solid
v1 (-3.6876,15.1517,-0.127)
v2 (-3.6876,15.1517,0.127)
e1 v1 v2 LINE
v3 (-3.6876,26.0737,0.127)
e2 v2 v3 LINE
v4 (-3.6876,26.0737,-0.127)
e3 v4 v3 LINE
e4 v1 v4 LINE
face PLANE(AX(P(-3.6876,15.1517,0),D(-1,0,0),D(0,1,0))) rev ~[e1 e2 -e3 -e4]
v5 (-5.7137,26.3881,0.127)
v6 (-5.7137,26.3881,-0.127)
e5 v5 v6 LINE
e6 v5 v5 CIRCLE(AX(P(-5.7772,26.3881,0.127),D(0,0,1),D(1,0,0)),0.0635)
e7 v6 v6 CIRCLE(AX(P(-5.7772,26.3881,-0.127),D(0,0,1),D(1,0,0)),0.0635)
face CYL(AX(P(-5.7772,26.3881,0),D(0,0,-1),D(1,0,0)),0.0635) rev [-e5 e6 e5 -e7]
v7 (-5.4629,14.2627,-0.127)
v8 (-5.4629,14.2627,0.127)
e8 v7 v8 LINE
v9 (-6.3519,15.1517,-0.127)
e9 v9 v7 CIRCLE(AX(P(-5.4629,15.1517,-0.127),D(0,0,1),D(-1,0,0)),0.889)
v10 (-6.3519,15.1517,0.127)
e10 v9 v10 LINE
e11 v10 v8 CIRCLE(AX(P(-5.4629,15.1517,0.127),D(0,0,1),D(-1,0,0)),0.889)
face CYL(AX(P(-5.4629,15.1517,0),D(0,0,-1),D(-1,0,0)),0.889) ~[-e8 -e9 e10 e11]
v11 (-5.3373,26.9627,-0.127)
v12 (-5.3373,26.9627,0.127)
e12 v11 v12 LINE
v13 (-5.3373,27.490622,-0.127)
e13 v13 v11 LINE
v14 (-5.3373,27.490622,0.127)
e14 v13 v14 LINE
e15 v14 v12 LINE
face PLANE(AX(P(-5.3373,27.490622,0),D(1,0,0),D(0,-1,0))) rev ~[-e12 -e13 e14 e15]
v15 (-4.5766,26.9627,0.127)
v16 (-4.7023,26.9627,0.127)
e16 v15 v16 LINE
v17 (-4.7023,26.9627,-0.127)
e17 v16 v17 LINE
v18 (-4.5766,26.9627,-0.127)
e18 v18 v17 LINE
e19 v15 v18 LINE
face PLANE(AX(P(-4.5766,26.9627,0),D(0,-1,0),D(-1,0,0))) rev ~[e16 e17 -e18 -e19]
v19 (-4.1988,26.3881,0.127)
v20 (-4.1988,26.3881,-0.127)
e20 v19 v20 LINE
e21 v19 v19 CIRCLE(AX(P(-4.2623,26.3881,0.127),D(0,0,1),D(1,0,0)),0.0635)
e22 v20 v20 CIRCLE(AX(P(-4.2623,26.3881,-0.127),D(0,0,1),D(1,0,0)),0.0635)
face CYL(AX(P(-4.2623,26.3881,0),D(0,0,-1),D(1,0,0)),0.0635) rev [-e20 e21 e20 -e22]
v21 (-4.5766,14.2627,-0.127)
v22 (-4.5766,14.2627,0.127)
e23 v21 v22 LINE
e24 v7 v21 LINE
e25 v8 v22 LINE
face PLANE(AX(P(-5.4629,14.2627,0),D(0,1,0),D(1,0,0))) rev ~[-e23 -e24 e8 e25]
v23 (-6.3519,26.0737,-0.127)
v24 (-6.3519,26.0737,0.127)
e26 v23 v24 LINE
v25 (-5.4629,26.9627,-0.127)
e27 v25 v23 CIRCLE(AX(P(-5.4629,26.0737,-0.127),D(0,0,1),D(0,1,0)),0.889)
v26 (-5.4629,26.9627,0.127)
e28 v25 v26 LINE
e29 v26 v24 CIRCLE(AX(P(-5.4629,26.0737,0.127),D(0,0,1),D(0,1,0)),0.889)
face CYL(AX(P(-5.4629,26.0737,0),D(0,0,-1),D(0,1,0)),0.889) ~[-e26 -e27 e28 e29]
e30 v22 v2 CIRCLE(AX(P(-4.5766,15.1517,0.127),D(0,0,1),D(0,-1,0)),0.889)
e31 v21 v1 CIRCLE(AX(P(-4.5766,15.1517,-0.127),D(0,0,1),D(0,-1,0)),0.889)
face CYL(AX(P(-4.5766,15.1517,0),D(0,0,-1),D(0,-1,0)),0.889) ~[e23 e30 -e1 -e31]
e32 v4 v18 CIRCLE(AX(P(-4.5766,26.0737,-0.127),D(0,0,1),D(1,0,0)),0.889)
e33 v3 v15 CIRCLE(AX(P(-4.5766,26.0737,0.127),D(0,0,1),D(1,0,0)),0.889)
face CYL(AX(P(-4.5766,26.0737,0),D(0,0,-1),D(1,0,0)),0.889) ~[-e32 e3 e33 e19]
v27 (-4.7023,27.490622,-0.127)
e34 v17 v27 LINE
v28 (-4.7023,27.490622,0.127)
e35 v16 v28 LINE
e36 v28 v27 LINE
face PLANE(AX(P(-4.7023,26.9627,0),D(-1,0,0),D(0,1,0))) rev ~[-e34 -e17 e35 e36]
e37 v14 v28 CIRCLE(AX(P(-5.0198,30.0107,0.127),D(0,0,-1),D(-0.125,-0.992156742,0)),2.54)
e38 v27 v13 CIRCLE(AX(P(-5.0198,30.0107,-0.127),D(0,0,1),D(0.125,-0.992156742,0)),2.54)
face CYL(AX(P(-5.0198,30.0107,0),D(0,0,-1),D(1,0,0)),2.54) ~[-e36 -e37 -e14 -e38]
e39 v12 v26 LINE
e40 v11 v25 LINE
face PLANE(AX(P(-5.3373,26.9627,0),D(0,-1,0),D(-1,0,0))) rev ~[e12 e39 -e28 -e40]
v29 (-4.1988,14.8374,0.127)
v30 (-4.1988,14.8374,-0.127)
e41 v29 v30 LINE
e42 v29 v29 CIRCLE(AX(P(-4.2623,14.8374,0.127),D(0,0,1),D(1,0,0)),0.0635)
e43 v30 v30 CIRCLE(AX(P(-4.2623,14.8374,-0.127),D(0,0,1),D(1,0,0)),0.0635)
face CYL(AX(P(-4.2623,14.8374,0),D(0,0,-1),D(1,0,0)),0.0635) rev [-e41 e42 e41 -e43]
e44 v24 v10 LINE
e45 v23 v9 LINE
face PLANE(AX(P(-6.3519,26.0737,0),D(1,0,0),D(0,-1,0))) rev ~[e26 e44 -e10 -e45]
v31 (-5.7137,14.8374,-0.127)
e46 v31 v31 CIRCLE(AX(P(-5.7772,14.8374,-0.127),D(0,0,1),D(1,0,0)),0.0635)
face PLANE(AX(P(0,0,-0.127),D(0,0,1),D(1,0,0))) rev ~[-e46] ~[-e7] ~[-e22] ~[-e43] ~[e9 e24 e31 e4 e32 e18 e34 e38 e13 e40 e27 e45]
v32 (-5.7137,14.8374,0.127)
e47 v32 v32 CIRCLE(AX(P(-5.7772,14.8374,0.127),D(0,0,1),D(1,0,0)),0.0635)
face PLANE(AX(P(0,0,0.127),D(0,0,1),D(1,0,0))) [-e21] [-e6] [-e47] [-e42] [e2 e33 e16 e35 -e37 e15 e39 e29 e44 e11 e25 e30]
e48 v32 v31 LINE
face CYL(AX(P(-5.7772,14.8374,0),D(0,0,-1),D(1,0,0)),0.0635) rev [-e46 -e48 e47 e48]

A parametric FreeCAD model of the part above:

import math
import FreeCAD as App
import Part
import Sketcher
from FreeCAD import Vector
Q = App.Units.Quantity

doc = App.newDocument("Part")
params = doc.addObject("Spreadsheet::Sheet", "Params")
for row, (alias, value) in enumerate([
    ("sketch1_radius", "0.1 in"),
    ("sketch1_diameter", "0.005 in"),
    ("sketch1_radius2", "0.035 in"),
    ("sketch1_height", "0.43 in"),
    ("pad1_length", "0.01 in"),
], start=1):
    params.set(f"A{row}", alias)
    params.set(f"B{row}", "=" + value)
    params.setAlias(f"B{row}", alias)

body = doc.addObject("PartDesign::Body", "Body")

# Sketch on XY plane
sketch1 = body.newObject("Sketcher::SketchObject", "Sketch")
sketch1.AttachmentSupport = (doc.getObject("XY_Plane"), [""])
sketch1.MapMode = "FlatFace"
sketch1.addGeometry(Part.LineSegment(Vector(-5.34, 27.49, 0), Vector(-5.34, 26.96, 0)), False)
sketch1.addGeometry(Part.LineSegment(Vector(-5.34, 26.96, 0), Vector(-5.46, 26.96, 0)), False)
sketch1.addGeometry(Part.ArcOfCircle(Part.Circle(Vector(-5.46, 26.07, 0), Vector(0, 0, 1), 0.89), math.radians(90), math.radians(180)), False)
sketch1.addGeometry(Part.LineSegment(Vector(-6.35, 26.07, 0), Vector(-6.35, 15.15, 0)), False)
sketch1.addGeometry(Part.ArcOfCircle(Part.Circle(Vector(-5.46, 15.15, 0), Vector(0, 0, 1), 0.89), math.radians(180), math.radians(270)), False)
sketch1.addGeometry(Part.LineSegment(Vector(-5.46, 14.26, 0), Vector(-4.58, 14.26, 0)), False)
sketch1.addGeometry(Part.ArcOfCircle(Part.Circle(Vector(-4.58, 15.15, 0), Vector(0, 0, 1), 0.89), math.radians(-90), math.radians(0)), False)
sketch1.addGeometry(Part.LineSegment(Vector(-3.69, 15.15, 0), Vector(-3.69, 26.07, 0)), False)
sketch1.addGeometry(Part.ArcOfCircle(Part.Circle(Vector(-4.58, 26.07, 0), Vector(0, 0, 1), 0.89), math.radians(0), math.radians(90)), False)
sketch1.addGeometry(Part.LineSegment(Vector(-4.58, 26.96, 0), Vector(-4.7, 26.96, 0)), False)
sketch1.addGeometry(Part.LineSegment(Vector(-4.7, 26.96, 0), Vector(-4.7, 27.49, 0)), False)
sketch1.addGeometry(Part.ArcOfCircle(Part.Circle(Vector(-5.02, 30.01, 0), Vector(0, 0, 1), 2.54), math.radians(-83), math.radians(263)), False)
sketch1.addGeometry(Part.Circle(Vector(-4.26, 14.84, 0), Vector(0, 0, 1), 0.06), False)
sketch1.addGeometry(Part.Circle(Vector(-5.78, 26.39, 0), Vector(0, 0, 1), 0.06), False)
sketch1.addGeometry(Part.Circle(Vector(-4.26, 26.39, 0), Vector(0, 0, 1), 0.06), False)
sketch1.addGeometry(Part.Circle(Vector(-5.78, 14.84, 0), Vector(0, 0, 1), 0.06), False)
sketch1.addConstraint(Sketcher.Constraint("Coincident", 0, 2, 1, 1))
sketch1.addConstraint(Sketcher.Constraint("Tangent", 1, 2, 2, 1))
sketch1.addConstraint(Sketcher.Constraint("Tangent", 2, 2, 3, 1))
sketch1.addConstraint(Sketcher.Constraint("Tangent", 3, 2, 4, 1))
sketch1.addConstraint(Sketcher.Constraint("Tangent", 4, 2, 5, 1))
sketch1.addConstraint(Sketcher.Constraint("Tangent", 5, 2, 6, 1))
sketch1.addConstraint(Sketcher.Constraint("Tangent", 6, 2, 7, 1))
sketch1.addConstraint(Sketcher.Constraint("Tangent", 7, 2, 8, 1))
sketch1.addConstraint(Sketcher.Constraint("Tangent", 8, 2, 9, 1))
sketch1.addConstraint(Sketcher.Constraint("Coincident", 9, 2, 10, 1))
sketch1.addConstraint(Sketcher.Constraint("Coincident", 10, 2, 11, 1))
sketch1.addConstraint(Sketcher.Constraint("Coincident", 11, 2, 0, 1))
sketch1.addConstraint(Sketcher.Constraint("Vertical", 0))
sketch1.addConstraint(Sketcher.Constraint("Horizontal", 1))
sketch1.addConstraint(Sketcher.Constraint("Vertical", 3))
sketch1.addConstraint(Sketcher.Constraint("Horizontal", 5))
sketch1.addConstraint(Sketcher.Constraint("Vertical", 7))
sketch1.addConstraint(Sketcher.Constraint("Horizontal", 9))
sketch1.addConstraint(Sketcher.Constraint("Vertical", 10))
sketch1.addConstraint(Sketcher.Constraint("Equal", 2, 4))
sketch1.addConstraint(Sketcher.Constraint("Equal", 4, 6))
sketch1.addConstraint(Sketcher.Constraint("Equal", 6, 8))
sketch1.addConstraint(Sketcher.Constraint("Equal", 12, 13))
sketch1.addConstraint(Sketcher.Constraint("Equal", 13, 14))
sketch1.addConstraint(Sketcher.Constraint("Equal", 14, 15))
sketch1.addConstraint(Sketcher.Constraint("Horizontal", 2, 3, 8, 3))
sketch1.addConstraint(Sketcher.Constraint("Horizontal", 13, 3, 14, 3))
sketch1.addConstraint(Sketcher.Constraint("Horizontal", 12, 3, 15, 3))
sketch1.addConstraint(Sketcher.Constraint("Horizontal", 10, 2, 11, 2))
sketch1.addConstraint(Sketcher.Constraint("Vertical", 12, 3, 14, 3))
sketch1.addConstraint(Sketcher.Constraint("Vertical", 13, 3, 15, 3))
sketch1.addConstraint(Sketcher.Constraint("Equal", 1, 9))
sketch1.addConstraint(Sketcher.Constraint("Radius", 11, Q("0.1 in")))
sketch1.addConstraint(Sketcher.Constraint("Diameter", 12, Q("0.005 in")))
sketch1.addConstraint(Sketcher.Constraint("DistanceY", 0, 2, 11, 3, Q("0.12 in")))
sketch1.addConstraint(Sketcher.Constraint("Radius", 2, Q("0.035 in")))
sketch1.addConstraint(Sketcher.Constraint("DistanceY", 3, 2, 3, 1, Q("0.43 in")))
sketch1.addConstraint(Sketcher.Constraint("DistanceX", 5, 1, 5, 2, Q("0.0349 in")))
sketch1.addConstraint(Sketcher.Constraint("DistanceX", 0, 2, 9, 2, Q("0.025 in")))
sketch1.addConstraint(Sketcher.Constraint("DistanceX", 12, 3, -1, 1, Q("0.1678 in")))
sketch1.addConstraint(Sketcher.Constraint("DistanceY", -1, 1, 13, 3, Q("1.0389 in")))
sketch1.addConstraint(Sketcher.Constraint("DistanceY", -1, 1, 10, 2, Q("1.0823 in")))
sketch1.addConstraint(Sketcher.Constraint("DistanceX", 2, 3, -1, 1, Q("5.463 mm")))
sketch1.addConstraint(Sketcher.Constraint("DistanceY", -1, 1, 12, 3, Q("14.8374 mm")))
sketch1.addConstraint(Sketcher.Constraint("DistanceX", 13, 3, -1, 1, Q("5.7772 mm")))
sketch1.setExpression("Constraints[32]", "Params.sketch1_radius")
sketch1.setExpression("Constraints[33]", "Params.sketch1_diameter")
sketch1.setExpression("Constraints[35]", "Params.sketch1_radius2")
sketch1.setExpression("Constraints[36]", "Params.sketch1_height")
pad1 = body.newObject("PartDesign::Pad", "Pad")
pad1.Profile = sketch1
pad1.setExpression("Length", "Params.pad1_length")
pad1.Midplane = True

doc.recompute()
